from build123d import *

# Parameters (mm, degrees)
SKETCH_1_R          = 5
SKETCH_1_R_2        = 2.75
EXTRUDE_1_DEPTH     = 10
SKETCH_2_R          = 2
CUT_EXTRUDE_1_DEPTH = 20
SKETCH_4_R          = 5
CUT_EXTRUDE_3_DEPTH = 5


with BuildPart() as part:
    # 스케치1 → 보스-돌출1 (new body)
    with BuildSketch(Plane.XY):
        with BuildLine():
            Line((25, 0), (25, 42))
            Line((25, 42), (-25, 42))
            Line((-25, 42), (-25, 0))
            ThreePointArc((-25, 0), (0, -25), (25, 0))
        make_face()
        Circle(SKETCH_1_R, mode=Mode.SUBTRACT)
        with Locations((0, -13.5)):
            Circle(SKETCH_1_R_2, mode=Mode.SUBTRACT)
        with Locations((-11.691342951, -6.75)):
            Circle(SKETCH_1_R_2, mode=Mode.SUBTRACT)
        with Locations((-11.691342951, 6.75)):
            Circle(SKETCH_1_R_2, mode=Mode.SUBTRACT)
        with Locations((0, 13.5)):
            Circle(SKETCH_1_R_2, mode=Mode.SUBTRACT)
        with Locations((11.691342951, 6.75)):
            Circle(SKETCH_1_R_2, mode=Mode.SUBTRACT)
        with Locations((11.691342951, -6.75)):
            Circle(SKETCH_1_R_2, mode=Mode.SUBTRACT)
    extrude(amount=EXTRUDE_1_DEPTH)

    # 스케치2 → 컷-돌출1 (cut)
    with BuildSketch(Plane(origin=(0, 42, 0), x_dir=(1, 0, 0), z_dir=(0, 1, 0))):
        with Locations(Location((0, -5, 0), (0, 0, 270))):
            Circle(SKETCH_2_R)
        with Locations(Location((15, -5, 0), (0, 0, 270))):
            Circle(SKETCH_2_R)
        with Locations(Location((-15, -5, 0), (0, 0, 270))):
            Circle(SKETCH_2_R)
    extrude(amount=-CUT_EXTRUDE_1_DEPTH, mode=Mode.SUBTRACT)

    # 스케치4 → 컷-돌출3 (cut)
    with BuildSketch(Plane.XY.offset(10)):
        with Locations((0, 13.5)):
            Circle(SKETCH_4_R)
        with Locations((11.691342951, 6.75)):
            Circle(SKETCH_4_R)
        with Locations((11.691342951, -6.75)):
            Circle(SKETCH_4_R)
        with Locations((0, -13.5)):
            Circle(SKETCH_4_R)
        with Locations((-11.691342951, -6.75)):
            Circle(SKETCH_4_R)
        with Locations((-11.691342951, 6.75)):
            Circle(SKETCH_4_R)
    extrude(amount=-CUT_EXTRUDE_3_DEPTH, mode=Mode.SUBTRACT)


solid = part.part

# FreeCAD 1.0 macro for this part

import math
import FreeCAD as App
import Part
import Sketcher
from FreeCAD import Vector

doc = App.newDocument("Part")
body = doc.addObject("PartDesign::Body", "Body")

# Sketch on XY plane
sketch1 = doc.addObject("Sketcher::SketchObject", "Sketch")
body.addObject(sketch1)
sketch1.AttachmentSupport = (doc.XY_Plane, [""])
sketch1.MapMode = "FlatFace"
sketch1.addGeometry([
    Part.LineSegment(Vector(25, 0, 0), Vector(25, 42, 0)),  # 0
    Part.LineSegment(Vector(25, 42, 0), Vector(-25, 42, 0)),  # 1
    Part.LineSegment(Vector(-25, 42, 0), Vector(-25, 0, 0)),  # 2
    Part.ArcOfCircle(Part.Circle(Vector(0, 0, 0), Vector(0, 0, 1), 25), math.radians(180), math.radians(360)),  # 3
    Part.Circle(Vector(-11.7, -6.8, 0), Vector(0, 0, 1), 2.8),  # 4
    Part.Circle(Vector(0, -13.5, 0), Vector(0, 0, 1), 2.8),  # 5
    Part.Circle(Vector(11.7, -6.8, 0), Vector(0, 0, 1), 2.8),  # 6
    Part.Circle(Vector(-11.7, 6.8, 0), Vector(0, 0, 1), 2.8),  # 7
    Part.Circle(Vector(0, 0, 0), Vector(0, 0, 1), 5),  # 8
    Part.Circle(Vector(11.7, 6.8, 0), Vector(0, 0, 1), 2.8),  # 9
    Part.Circle(Vector(0, 13.5, 0), Vector(0, 0, 1), 2.8),  # 10
], False)
sketch1.addConstraint([
    Sketcher.Constraint("Coincident", 0, 2, 1, 1),
    Sketcher.Constraint("Coincident", 1, 2, 2, 1),
    Sketcher.Constraint("Tangent", 2, 2, 3, 1),
    Sketcher.Constraint("Tangent", 3, 2, 0, 1),
    Sketcher.Constraint("Vertical", 0),
    Sketcher.Constraint("Horizontal", 1),
    Sketcher.Constraint("Vertical", 2),
    Sketcher.Constraint("Coincident", 3, 3, -1, 1),
    Sketcher.Constraint("Coincident", 8, 3, -1, 1),
    Sketcher.Constraint("Equal", 4, 5),
    Sketcher.Constraint("Equal", 5, 6),
    Sketcher.Constraint("Equal", 6, 7),
    Sketcher.Constraint("Equal", 7, 9),
    Sketcher.Constraint("Equal", 9, 10),
    Sketcher.Constraint("Symmetric", 6, 3, 7, 3, -1, 1),
    Sketcher.Constraint("Symmetric", 4, 3, 9, 3, -1, 1),
    Sketcher.Constraint("Symmetric", 5, 3, 10, 3, -1, 1),
    Sketcher.Constraint("Symmetric", 4, 3, 6, 3, -2),
    Sketcher.Constraint("PointOnObject", 5, 3, -2),
    Sketcher.Constraint("Diameter", 8, 10.0),
    Sketcher.Constraint("Radius", 3, 25.0),
    Sketcher.Constraint("Diameter", 4, 5.5),
    Sketcher.Constraint("DistanceY", 0, 1, 0, 2, 42.0),
    Sketcher.Constraint("DistanceY", 5, 3, -1, 1, 13.5),
    Sketcher.Constraint("DistanceY", 4, 3, 7, 3, 13.5),
    Sketcher.Constraint("DistanceX", 4, 3, -1, 1, 11.691343),
])
pad1 = doc.addObject("PartDesign::Pad", "Pad")
body.addObject(pad1)
pad1.Profile = sketch1
pad1.Length = 10

# Sketch on XZ plane
sketch2 = doc.addObject("Sketcher::SketchObject", "Sketch001")
body.addObject(sketch2)
sketch2.AttachmentSupport = (doc.XZ_Plane, [""])
sketch2.MapMode = "FlatFace"
sketch2.AttachmentOffset = App.Placement(Vector(0, 0, -42), App.Rotation())
sketch2.addGeometry([
    Part.Circle(Vector(0, 5, 0), Vector(0, 0, 1), 2),
    Part.Circle(Vector(15, 5, 0), Vector(0, 0, 1), 2),
    Part.Circle(Vector(-15, 5, 0), Vector(0, 0, 1), 2),
], False)
sketch2.addConstraint([
    Sketcher.Constraint("Equal", 0, 1),
    Sketcher.Constraint("Equal", 1, 2),
    Sketcher.Constraint("Symmetric", 1, 3, 2, 3, -2),
    Sketcher.Constraint("PointOnObject", 0, 3, -2),
    Sketcher.Constraint("Horizontal", 0, 3, 1, 3),
    Sketcher.Constraint("Diameter", 0, 4.0),
    Sketcher.Constraint("DistanceY", -1, 1, 0, 3, 5.0),
    Sketcher.Constraint("DistanceX", -1, 1, 1, 3, 15.0),
])
pocket1 = doc.addObject("PartDesign::Pocket", "Pocket")
body.addObject(pocket1)
pocket1.Profile = sketch2
pocket1.Length = 20
pocket1.Reversed = True

# Sketch on XY plane
sketch3 = doc.addObject("Sketcher::SketchObject", "Sketch002")
body.addObject(sketch3)
sketch3.AttachmentSupport = (doc.XY_Plane, [""])
sketch3.MapMode = "FlatFace"
sketch3.AttachmentOffset = App.Placement(Vector(0, 0, 10), App.Rotation())
sketch3.addGeometry([
    Part.Circle(Vector(0, 14, 0), Vector(0, 0, 1), 5),  # 0
    Part.Circle(Vector(12, 7, 0), Vector(0, 0, 1), 5),  # 1
    Part.Circle(Vector(12, -7, 0), Vector(0, 0, 1), 5),  # 2
    Part.Circle(Vector(0, -14, 0), Vector(0, 0, 1), 5),  # 3
    Part.Circle(Vector(-12, -7, 0), Vector(0, 0, 1), 5),  # 4
    Part.Circle(Vector(-12, 7, 0), Vector(0, 0, 1), 5),  # 5
], False)
sketch3.addConstraint([
    Sketcher.Constraint("Equal", 0, 1),
    Sketcher.Constraint("Equal", 1, 2),
    Sketcher.Constraint("Equal", 2, 3),
    Sketcher.Constraint("Equal", 3, 4),
    Sketcher.Constraint("Equal", 4, 5),
    Sketcher.Constraint("Symmetric", 0, 3, 3, 3, -1, 1),
    Sketcher.Constraint("Symmetric", 1, 3, 4, 3, -1, 1),
    Sketcher.Constraint("Symmetric", 2, 3, 5, 3, -1, 1),
    Sketcher.Constraint("Symmetric", 2, 3, 4, 3, -2),
    Sketcher.Constraint("PointOnObject", 0, 3, -2),
    Sketcher.Constraint("Diameter", 0, 10.0),
    Sketcher.Constraint("DistanceY", 3, 3, 0, 3, 27.0),
    Sketcher.Constraint("DistanceY", 2, 3, 1, 3, 13.5),
    Sketcher.Constraint("DistanceX", -1, 1, 1, 3, 11.691343),
])
pocket2 = doc.addObject("PartDesign::Pocket", "Pocket001")
body.addObject(pocket2)
pocket2.Profile = sketch3
pocket2.Length = 5

doc.recompute()
